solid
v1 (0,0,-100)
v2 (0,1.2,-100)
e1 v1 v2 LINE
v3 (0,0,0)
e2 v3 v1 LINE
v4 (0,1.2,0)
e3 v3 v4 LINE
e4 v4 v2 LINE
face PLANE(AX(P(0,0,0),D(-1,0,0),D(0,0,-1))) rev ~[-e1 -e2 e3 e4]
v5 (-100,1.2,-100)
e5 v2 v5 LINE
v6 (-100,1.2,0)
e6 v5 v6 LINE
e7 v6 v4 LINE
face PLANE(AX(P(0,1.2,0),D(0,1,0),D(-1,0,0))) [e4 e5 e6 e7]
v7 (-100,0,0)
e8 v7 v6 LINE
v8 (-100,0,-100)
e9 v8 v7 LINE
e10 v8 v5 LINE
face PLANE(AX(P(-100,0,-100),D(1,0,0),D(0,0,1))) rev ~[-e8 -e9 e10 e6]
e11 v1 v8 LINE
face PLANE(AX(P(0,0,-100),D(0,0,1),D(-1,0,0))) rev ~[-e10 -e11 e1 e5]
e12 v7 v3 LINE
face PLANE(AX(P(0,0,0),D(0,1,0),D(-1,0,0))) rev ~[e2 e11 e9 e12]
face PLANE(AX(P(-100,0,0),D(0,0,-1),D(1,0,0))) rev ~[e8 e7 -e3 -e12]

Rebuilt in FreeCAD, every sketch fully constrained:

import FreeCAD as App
import Part
import Sketcher
from FreeCAD import Vector


def add_polygon(sketch, points):
    """Adds a closed chain of lines whose ends are joined by coincident constraints."""
    first, n = sketch.GeometryCount, len(points)
    for a, b in zip(points, points[1:] + points[:1]):
        sketch.addGeometry(Part.LineSegment(App.Vector(*a, 0), App.Vector(*b, 0)), False)
    for i in range(n):
        sketch.addConstraint(Sketcher.Constraint("Coincident", first + i, 2, first + (i + 1) % n, 1))

doc = App.newDocument("Part")
params = doc.addObject("Spreadsheet::Sheet", "Params")
for row, (alias, value) in enumerate([
    ("sketch1_width", "100 mm"),
    ("pad1_length", "1.2 mm"),
], start=1):
    params.set(f"A{row}", alias)
    params.set(f"B{row}", "=" + value)
    params.setAlias(f"B{row}", alias)

body = doc.addObject("PartDesign::Body", "Body")

sketch1 = body.newObject("Sketcher::SketchObject", "Sketch")
sketch1.AttachmentSupport = (doc.getObject("XZ_Plane"), [""])
sketch1.MapMode = "FlatFace"
add_polygon(sketch1, [(-100, 0), (0, 0), (0, -100), (-100, -100)])
sketch1.addConstraint(Sketcher.Constraint("Horizontal", 0))
sketch1.addConstraint(Sketcher.Constraint("Vertical", 1))
sketch1.addConstraint(Sketcher.Constraint("Horizontal", 2))
sketch1.addConstraint(Sketcher.Constraint("Vertical", 3))
sketch1.addConstraint(Sketcher.Constraint("Coincident", 0, 2, -1, 1))
sketch1.addConstraint(Sketcher.Constraint("Equal", 2, 1))
sketch1.addConstraint(Sketcher.Constraint("DistanceX", 0, 1, 0, 2, 100.0))
sketch1.setExpression("Constraints[10]", "Params.sketch1_width")
pad1 = body.newObject("PartDesign::Pad", "Pad")
pad1.Profile = sketch1
pad1.setExpression("Length", "Params.pad1_length")
pad1.Reversed = True

doc.recompute()
